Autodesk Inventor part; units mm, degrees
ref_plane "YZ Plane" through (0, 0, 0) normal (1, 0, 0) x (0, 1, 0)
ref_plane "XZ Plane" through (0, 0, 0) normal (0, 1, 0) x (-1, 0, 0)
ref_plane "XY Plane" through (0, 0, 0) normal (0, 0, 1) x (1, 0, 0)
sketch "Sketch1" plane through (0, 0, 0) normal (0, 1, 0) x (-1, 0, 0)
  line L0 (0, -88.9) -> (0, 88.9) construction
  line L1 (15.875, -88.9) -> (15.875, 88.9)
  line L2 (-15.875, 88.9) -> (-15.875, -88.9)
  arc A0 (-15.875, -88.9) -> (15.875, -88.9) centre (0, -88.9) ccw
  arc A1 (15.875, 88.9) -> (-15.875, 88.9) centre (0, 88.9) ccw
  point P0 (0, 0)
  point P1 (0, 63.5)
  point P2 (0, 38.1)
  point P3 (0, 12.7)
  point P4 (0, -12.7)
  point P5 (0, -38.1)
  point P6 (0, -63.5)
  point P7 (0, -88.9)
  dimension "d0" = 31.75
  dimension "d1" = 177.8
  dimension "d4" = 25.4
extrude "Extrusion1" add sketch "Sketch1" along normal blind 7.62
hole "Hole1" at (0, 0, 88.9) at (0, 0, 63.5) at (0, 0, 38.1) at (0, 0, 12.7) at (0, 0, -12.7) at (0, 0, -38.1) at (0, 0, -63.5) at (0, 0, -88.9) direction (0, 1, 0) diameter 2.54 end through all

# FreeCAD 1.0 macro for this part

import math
import FreeCAD as App
import Part
import Sketcher
Q = App.Units.Quantity

doc = App.newDocument("Part")
body = doc.addObject("PartDesign::Body", "Body")

sketch1 = doc.addObject("Sketcher::SketchObject", "Sketch")
body.addObject(sketch1)
sketch1.AttachmentSupport = (doc.XZ_Plane, [""])
sketch1.MapMode = "FlatFace"
sketch1.addGeometry([
    Part.ArcOfCircle(Part.Circle(App.Vector(0, -89, 0), App.Vector(0, 0, 1), 16), math.radians(180), math.radians(360)),
    Part.LineSegment(App.Vector(-16, -89, 0), App.Vector(-16, 89, 0)),
    Part.ArcOfCircle(Part.Circle(App.Vector(0, 89, 0), App.Vector(0, 0, 1), 16), math.radians(0), math.radians(180)),
    Part.LineSegment(App.Vector(16, 89, 0), App.Vector(16, -89, 0)),
], False)
sketch1.addConstraint([
    Sketcher.Constraint("Tangent", 0, 1, 1, 1),
    Sketcher.Constraint("Tangent", 1, 2, 2, 2),
    Sketcher.Constraint("Tangent", 2, 1, 3, 1),
    Sketcher.Constraint("Tangent", 3, 2, 0, 2),
    Sketcher.Constraint("Vertical", 1),
    Sketcher.Constraint("Vertical", 3),
    Sketcher.Constraint("Symmetric", 0, 3, 2, 3, -1, 1),
    Sketcher.Constraint("DistanceY", 1, 1, 1, 2, Q("7 in")),
    Sketcher.Constraint("Radius", 0, Q("0.625 in")),
])
pad1 = doc.addObject("PartDesign::Pad", "Pad")
body.addObject(pad1)
pad1.Profile = sketch1
pad1.Length = Q("0.3 in")
pad1.Reversed = True

sketch2 = doc.addObject("Sketcher::SketchObject", "Sketch001")
body.addObject(sketch2)
sketch2.AttachmentSupport = (doc.XZ_Plane, [""])
sketch2.MapMode = "FlatFace"
sketch2.addGeometry([
    Part.Circle(App.Vector(0, 88.9, 0), App.Vector(0, 0, 1), 1.3),
    Part.Circle(App.Vector(0, 63.5, 0), App.Vector(0, 0, 1), 1.3),
    Part.Circle(App.Vector(0, 38.1, 0), App.Vector(0, 0, 1), 1.3),
    Part.Circle(App.Vector(0, 12.7, 0), App.Vector(0, 0, 1), 1.3),
    Part.Circle(App.Vector(0, -12.7, 0), App.Vector(0, 0, 1), 1.3),
    Part.Circle(App.Vector(0, -38.1, 0), App.Vector(0, 0, 1), 1.3),
    Part.Circle(App.Vector(0, -63.5, 0), App.Vector(0, 0, 1), 1.3),
    Part.Circle(App.Vector(0, -88.9, 0), App.Vector(0, 0, 1), 1.3),
], False)
sketch2.addConstraint([
    Sketcher.Constraint("Equal", 0, 1),
    Sketcher.Constraint("Equal", 1, 2),
    Sketcher.Constraint("Equal", 2, 3),
    Sketcher.Constraint("Equal", 3, 4),
    Sketcher.Constraint("Equal", 4, 5),
    Sketcher.Constraint("Equal", 5, 6),
    Sketcher.Constraint("Equal", 6, 7),
    Sketcher.Constraint("Symmetric", 3, 3, 4, 3, -1, 1),
    Sketcher.Constraint("Symmetric", 2, 3, 5, 3, -1, 1),
    Sketcher.Constraint("Symmetric", 1, 3, 6, 3, -1, 1),
    Sketcher.Constraint("Symmetric", 0, 3, 7, 3, -1, 1),
    Sketcher.Constraint("PointOnObject", 0, 3, -2),
    Sketcher.Constraint("PointOnObject", 1, 3, -2),
    Sketcher.Constraint("PointOnObject", 2, 3, -2),
    Sketcher.Constraint("PointOnObject", 3, 3, -2),
    Sketcher.Constraint("Diameter", 0, Q("0.1 in")),
    Sketcher.Constraint("DistanceY", 1, 3, 0, 3, Q("1 in")),
    Sketcher.Constraint("DistanceY", 2, 3, 1, 3, Q("1 in")),
    Sketcher.Constraint("DistanceY", 3, 3, 2, 3, Q("1 in")),
    Sketcher.Constraint("DistanceY", 4, 3, 3, 3, Q("1 in")),
])
doc.recompute()
hole = doc.addObject("PartDesign::Hole", "Hole")
body.addObject(hole)
hole.Profile = sketch2
hole.ThreadType = "None"
hole.Diameter = Q("0.1 in")
hole.DepthType = "ThroughAll"

doc.recompute()
